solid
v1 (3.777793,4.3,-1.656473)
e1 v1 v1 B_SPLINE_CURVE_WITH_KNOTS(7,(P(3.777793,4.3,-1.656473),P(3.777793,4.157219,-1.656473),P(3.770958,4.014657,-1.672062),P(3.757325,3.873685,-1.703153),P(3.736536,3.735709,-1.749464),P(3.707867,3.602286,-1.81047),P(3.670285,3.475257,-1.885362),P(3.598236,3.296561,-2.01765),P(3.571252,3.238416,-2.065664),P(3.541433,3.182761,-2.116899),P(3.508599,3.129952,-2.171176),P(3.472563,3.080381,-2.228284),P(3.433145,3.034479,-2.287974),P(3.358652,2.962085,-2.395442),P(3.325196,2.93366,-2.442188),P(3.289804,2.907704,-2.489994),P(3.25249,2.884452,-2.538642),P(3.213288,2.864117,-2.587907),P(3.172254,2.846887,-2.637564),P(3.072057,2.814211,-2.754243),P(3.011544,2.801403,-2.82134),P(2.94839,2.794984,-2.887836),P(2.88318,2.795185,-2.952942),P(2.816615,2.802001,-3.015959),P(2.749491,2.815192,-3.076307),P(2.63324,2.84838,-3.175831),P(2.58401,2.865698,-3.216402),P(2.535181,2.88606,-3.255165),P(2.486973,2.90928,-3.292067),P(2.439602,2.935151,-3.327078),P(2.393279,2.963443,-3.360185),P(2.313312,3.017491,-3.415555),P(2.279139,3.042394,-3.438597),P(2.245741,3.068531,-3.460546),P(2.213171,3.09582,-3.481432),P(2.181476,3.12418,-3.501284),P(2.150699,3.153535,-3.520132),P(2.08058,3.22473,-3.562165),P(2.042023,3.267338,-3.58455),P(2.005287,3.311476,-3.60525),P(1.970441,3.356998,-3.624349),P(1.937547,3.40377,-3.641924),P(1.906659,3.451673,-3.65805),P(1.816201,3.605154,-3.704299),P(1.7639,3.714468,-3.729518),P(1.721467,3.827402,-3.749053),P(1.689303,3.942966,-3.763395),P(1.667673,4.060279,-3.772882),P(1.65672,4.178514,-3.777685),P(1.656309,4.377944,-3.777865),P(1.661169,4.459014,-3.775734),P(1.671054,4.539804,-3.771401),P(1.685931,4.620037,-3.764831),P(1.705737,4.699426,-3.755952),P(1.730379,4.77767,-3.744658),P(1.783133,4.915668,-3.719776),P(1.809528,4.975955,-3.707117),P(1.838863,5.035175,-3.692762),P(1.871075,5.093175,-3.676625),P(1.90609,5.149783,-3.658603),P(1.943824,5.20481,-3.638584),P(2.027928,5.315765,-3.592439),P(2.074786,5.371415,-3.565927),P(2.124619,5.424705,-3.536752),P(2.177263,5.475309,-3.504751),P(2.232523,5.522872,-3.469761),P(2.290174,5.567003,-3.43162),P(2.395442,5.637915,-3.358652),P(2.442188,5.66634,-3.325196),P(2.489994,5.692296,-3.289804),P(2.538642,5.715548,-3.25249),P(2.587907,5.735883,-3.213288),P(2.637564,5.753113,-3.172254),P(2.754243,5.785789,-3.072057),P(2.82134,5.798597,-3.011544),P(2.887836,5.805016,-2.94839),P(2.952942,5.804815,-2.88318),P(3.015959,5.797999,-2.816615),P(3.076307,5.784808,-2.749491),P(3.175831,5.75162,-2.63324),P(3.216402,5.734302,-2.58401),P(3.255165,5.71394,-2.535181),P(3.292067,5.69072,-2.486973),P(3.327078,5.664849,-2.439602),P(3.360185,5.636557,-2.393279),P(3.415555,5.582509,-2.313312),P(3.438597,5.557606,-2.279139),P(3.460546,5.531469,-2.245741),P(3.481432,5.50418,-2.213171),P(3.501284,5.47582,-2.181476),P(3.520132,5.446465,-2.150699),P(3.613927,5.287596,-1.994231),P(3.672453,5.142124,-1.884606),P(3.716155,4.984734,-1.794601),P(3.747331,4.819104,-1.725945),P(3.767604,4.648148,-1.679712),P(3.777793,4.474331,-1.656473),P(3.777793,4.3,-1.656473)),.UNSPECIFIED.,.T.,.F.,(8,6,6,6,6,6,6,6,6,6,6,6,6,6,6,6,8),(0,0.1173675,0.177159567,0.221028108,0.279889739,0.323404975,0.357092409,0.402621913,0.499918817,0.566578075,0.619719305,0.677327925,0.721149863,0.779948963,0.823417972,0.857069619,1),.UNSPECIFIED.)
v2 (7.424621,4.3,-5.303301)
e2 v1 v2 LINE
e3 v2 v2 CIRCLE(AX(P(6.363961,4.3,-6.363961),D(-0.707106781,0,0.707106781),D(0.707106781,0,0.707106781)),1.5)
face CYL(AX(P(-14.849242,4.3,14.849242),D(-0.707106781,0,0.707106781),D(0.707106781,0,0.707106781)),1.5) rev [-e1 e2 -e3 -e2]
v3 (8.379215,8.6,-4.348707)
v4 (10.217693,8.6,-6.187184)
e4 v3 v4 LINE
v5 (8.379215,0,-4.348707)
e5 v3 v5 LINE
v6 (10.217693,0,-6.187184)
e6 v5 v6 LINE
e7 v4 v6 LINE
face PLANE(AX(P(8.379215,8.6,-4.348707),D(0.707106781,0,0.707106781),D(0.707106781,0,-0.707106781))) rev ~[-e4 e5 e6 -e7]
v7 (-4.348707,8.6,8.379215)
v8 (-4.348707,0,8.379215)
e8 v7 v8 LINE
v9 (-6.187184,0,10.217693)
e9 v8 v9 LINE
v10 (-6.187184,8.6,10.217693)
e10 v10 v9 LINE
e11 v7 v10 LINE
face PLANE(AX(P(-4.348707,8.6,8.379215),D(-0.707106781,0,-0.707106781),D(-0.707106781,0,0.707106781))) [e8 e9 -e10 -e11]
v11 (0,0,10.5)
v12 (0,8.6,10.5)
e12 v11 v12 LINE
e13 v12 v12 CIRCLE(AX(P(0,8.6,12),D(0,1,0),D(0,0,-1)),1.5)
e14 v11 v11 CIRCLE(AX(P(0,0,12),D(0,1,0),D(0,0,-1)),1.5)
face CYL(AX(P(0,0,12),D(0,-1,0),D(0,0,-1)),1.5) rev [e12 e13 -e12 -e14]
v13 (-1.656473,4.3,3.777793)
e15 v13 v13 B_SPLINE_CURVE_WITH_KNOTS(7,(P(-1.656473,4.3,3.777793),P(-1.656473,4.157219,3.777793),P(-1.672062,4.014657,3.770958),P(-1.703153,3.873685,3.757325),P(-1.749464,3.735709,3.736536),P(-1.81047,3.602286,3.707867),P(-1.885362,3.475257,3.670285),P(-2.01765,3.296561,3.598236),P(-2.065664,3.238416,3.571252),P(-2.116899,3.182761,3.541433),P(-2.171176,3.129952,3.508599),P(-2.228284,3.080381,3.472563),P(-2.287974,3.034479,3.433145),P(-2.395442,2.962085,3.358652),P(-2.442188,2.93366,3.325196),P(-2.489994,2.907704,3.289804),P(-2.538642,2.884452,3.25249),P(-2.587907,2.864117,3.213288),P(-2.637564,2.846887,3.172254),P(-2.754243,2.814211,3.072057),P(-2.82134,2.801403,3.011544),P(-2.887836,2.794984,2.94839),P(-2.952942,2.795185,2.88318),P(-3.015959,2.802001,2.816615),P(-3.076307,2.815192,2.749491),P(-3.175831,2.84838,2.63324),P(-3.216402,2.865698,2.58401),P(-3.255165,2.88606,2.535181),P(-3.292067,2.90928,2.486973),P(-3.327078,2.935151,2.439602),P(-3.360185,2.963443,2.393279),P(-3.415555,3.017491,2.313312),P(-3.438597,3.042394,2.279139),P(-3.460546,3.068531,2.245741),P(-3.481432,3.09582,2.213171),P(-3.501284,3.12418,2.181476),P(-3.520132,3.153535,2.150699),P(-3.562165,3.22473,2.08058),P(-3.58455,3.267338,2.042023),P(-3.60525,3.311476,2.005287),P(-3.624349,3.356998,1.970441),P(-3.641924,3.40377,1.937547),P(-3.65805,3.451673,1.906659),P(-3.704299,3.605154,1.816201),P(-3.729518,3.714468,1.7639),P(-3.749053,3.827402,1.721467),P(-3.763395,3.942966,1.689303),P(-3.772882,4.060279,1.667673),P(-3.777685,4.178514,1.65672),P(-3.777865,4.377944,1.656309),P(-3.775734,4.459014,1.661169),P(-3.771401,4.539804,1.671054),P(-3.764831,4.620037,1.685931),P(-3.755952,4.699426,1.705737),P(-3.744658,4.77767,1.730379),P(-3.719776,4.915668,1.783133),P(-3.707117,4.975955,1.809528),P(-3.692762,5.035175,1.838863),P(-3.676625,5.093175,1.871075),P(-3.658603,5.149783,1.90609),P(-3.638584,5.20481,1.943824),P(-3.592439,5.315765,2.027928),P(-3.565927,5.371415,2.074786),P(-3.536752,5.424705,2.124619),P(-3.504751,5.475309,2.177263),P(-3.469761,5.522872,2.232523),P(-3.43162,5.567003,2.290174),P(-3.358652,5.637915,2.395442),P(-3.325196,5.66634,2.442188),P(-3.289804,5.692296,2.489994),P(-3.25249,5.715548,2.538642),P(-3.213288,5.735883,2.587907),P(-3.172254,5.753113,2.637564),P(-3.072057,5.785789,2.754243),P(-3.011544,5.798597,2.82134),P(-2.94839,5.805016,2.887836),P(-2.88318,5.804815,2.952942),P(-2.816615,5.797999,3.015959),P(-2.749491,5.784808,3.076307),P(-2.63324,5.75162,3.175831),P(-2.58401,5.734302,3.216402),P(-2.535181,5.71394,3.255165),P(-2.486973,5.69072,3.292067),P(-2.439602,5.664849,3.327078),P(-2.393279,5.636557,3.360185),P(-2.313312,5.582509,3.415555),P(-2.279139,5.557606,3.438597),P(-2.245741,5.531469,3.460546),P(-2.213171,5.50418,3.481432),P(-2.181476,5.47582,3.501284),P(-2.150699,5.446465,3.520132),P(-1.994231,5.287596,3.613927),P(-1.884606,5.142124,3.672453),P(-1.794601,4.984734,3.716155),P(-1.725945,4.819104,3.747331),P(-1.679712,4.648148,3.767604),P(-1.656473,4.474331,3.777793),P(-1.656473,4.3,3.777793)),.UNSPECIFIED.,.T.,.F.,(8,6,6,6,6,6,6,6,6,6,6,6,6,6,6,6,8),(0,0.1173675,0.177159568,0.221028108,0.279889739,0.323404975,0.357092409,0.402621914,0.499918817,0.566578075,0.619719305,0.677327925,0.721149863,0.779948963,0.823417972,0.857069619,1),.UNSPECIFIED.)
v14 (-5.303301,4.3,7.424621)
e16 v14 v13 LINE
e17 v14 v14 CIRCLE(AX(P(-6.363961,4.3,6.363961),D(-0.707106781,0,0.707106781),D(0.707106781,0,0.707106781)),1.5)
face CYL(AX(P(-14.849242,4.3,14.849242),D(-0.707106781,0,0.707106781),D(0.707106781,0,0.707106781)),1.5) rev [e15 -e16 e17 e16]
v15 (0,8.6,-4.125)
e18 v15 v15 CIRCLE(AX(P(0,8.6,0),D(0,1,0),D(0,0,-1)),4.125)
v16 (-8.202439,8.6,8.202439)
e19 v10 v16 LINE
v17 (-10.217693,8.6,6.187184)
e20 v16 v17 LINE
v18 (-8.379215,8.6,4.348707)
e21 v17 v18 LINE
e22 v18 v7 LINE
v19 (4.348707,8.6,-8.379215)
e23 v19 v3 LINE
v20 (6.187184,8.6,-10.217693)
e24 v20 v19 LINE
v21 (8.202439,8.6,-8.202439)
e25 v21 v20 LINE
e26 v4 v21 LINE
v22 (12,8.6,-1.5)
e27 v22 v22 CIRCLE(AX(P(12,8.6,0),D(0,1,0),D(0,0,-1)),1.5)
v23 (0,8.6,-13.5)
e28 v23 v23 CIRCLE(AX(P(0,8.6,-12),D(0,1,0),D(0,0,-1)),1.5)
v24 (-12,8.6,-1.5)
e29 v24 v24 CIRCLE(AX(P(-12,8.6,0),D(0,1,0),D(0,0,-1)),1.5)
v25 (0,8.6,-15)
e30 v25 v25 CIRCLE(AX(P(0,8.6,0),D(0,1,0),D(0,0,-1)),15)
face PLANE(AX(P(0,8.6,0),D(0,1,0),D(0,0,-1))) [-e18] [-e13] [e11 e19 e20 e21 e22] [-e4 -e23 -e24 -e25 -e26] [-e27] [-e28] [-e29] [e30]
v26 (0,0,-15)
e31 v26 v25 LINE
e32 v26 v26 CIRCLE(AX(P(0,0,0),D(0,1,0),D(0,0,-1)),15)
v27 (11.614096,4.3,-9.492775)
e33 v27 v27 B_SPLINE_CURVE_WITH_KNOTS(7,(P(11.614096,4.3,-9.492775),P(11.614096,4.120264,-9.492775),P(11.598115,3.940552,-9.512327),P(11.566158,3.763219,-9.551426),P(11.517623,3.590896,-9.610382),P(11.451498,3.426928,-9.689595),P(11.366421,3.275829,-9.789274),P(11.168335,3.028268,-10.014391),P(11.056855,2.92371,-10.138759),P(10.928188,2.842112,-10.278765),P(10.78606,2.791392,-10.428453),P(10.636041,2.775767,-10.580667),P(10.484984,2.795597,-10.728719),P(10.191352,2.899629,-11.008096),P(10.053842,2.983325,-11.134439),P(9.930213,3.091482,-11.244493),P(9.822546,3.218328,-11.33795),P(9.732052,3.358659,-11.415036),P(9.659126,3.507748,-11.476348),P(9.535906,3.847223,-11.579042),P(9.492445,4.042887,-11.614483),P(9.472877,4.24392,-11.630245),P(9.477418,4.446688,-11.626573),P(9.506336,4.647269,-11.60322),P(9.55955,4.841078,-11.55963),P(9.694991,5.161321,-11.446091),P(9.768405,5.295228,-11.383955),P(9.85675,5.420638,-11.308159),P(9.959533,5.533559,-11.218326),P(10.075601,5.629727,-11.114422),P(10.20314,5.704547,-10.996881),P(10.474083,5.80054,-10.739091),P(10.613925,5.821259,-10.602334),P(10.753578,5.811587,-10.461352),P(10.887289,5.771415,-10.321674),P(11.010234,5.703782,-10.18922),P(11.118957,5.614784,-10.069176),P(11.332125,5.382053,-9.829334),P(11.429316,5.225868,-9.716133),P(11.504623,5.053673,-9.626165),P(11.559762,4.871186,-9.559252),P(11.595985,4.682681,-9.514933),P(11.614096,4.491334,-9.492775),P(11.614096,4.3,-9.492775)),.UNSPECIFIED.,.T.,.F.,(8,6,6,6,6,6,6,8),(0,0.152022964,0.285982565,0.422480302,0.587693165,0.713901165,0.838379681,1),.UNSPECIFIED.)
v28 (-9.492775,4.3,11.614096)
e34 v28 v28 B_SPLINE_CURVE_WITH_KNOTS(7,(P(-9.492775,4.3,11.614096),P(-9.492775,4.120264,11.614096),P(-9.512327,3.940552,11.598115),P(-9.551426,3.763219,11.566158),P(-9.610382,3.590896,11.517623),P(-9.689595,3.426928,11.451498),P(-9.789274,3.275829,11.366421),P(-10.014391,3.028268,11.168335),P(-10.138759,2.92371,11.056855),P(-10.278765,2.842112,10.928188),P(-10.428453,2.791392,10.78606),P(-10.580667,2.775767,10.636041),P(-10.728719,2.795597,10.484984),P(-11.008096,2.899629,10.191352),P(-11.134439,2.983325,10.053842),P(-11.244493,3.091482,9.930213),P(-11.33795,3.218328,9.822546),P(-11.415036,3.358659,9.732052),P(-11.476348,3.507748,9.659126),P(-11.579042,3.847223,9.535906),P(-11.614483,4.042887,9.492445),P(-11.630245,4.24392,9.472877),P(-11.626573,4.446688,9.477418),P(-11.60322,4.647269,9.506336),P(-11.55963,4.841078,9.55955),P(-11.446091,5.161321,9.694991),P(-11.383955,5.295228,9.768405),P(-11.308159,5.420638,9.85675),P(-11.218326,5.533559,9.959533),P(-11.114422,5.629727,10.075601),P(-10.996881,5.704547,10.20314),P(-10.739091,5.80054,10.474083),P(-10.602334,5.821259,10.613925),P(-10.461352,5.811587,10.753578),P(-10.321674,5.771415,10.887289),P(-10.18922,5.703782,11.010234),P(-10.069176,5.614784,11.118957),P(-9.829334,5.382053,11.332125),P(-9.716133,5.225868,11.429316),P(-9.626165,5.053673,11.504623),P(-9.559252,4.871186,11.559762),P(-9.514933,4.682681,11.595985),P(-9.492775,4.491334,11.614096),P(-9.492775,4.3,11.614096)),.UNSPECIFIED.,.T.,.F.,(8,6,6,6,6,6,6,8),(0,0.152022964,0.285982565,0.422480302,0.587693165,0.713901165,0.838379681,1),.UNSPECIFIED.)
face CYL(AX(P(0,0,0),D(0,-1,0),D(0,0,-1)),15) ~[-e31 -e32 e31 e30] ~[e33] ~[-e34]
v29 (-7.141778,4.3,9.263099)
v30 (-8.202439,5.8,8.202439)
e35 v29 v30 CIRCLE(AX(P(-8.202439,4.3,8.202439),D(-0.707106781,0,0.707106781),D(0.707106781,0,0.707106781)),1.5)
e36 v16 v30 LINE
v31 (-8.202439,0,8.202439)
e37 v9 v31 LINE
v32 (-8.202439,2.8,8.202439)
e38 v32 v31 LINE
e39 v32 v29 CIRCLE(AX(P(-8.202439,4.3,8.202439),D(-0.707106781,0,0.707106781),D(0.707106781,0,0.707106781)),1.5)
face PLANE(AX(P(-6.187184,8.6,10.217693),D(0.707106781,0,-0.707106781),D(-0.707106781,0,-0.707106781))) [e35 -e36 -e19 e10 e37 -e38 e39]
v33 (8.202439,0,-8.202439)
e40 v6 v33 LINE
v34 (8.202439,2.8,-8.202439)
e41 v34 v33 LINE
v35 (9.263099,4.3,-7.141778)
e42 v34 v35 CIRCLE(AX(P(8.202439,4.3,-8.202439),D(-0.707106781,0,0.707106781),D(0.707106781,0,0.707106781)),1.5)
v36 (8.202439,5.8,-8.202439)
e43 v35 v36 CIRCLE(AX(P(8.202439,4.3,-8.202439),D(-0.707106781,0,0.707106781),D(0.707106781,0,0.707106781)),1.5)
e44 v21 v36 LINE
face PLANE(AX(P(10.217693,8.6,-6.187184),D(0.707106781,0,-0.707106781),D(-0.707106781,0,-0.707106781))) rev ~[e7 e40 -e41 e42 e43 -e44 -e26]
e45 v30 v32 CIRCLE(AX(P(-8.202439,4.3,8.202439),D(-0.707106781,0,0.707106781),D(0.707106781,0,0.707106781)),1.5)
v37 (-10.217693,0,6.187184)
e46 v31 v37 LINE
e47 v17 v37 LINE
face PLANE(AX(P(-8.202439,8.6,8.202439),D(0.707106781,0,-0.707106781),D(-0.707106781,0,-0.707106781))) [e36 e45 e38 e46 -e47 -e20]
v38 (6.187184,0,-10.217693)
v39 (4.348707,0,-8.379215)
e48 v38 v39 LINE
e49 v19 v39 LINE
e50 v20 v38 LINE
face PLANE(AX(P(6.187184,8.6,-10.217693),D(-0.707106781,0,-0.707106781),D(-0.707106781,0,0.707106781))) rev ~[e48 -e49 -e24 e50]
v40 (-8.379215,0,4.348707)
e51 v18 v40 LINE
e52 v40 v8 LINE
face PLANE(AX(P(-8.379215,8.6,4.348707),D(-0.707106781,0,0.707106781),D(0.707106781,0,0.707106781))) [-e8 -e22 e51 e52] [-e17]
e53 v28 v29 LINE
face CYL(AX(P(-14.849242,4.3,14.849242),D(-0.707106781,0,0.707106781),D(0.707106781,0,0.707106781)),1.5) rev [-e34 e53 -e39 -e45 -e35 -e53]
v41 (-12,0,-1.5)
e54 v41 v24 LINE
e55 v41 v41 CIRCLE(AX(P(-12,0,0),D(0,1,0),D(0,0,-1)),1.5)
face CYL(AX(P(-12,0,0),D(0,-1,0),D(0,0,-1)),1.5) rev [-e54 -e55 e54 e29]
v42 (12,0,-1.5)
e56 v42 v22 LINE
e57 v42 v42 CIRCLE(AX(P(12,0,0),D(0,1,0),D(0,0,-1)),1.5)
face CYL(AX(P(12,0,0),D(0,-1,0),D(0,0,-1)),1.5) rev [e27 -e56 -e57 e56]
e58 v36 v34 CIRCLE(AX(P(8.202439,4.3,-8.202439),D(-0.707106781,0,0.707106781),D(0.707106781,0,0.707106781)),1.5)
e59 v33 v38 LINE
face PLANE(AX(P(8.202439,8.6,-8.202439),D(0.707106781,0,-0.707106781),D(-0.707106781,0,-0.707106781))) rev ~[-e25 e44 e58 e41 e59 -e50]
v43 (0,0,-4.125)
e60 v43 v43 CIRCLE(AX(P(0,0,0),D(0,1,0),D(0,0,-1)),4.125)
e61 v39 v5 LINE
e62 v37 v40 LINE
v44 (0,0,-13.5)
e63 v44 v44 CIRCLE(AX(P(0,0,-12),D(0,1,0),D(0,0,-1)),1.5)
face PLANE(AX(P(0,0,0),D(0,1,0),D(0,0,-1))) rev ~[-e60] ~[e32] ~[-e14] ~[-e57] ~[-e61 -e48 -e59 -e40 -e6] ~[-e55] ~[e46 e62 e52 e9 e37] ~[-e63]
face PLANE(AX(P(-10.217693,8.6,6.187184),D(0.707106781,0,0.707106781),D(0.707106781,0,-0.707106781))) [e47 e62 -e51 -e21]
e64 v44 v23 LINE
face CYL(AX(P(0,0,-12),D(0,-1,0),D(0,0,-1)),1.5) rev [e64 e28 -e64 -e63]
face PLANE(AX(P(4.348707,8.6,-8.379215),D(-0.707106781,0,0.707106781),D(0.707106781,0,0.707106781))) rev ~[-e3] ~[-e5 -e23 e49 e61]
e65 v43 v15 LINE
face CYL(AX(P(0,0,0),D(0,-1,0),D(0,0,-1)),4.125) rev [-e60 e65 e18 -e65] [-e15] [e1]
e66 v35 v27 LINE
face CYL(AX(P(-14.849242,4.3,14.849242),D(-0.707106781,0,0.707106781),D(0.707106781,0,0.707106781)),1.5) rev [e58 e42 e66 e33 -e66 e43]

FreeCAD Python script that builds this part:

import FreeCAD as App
import Part
import Sketcher
from FreeCAD import Vector
Q = App.Units.Quantity


def add_polygon(sketch, points):
    """Adds a closed chain of lines whose ends are joined by coincident constraints."""
    first, n = sketch.GeometryCount, len(points)
    for a, b in zip(points, points[1:] + points[:1]):
        sketch.addGeometry(Part.LineSegment(App.Vector(*a, 0), App.Vector(*b, 0)), False)
    for i in range(n):
        sketch.addConstraint(Sketcher.Constraint("Coincident", first + i, 2, first + (i + 1) % n, 1))

doc = App.newDocument("Part")
body = doc.addObject("PartDesign::Body", "Body")

sketch1 = body.newObject("Sketcher::SketchObject", "Sketch")
sketch1.AttachmentSupport = (doc.getObject("XZ_Plane"), [""])
sketch1.MapMode = "FlatFace"
sketch1.addGeometry(Part.Circle(Vector(0, 0, 0), Vector(0, 0, 1), 15), False)
sketch1.addGeometry(Part.Circle(Vector(0, 12, 0), Vector(0, 0, 1), 1.5), False)
sketch1.addGeometry(Part.Circle(Vector(12, 0, 0), Vector(0, 0, 1), 1.5), False)
sketch1.addGeometry(Part.Circle(Vector(-12, 0, 0), Vector(0, 0, 1), 1.5), False)
sketch1.addGeometry(Part.Circle(Vector(0, 0, 0), Vector(0, 0, 1), 4.125), False)
sketch1.addGeometry(Part.Circle(Vector(0, -12, 0), Vector(0, 0, 1), 1.5), False)
sketch1.addConstraint(Sketcher.Constraint("Coincident", 0, 3, -1, 1))
sketch1.addConstraint(Sketcher.Constraint("Coincident", 4, 3, -1, 1))
sketch1.addConstraint(Sketcher.Constraint("Equal", 1, 2))
sketch1.addConstraint(Sketcher.Constraint("Equal", 2, 3))
sketch1.addConstraint(Sketcher.Constraint("Equal", 3, 5))
sketch1.addConstraint(Sketcher.Constraint("Symmetric", 2, 3, 3, 3, -1, 1))
sketch1.addConstraint(Sketcher.Constraint("Symmetric", 1, 3, 5, 3, -1, 1))
sketch1.addConstraint(Sketcher.Constraint("PointOnObject", 1, 3, -2))
sketch1.addConstraint(Sketcher.Constraint("PointOnObject", 2, 3, -1))
sketch1.addConstraint(Sketcher.Constraint("Diameter", 0, Q("30 mm")))
sketch1.addConstraint(Sketcher.Constraint("Diameter", 1, Q("3 mm")))
sketch1.addConstraint(Sketcher.Constraint("Diameter", 4, Q("8.25 mm")))
sketch1.addConstraint(Sketcher.Constraint("DistanceY", -1, 1, 1, 3, Q("12 mm")))
sketch1.addConstraint(Sketcher.Constraint("DistanceX", -1, 1, 2, 3, Q("12 mm")))
pad1 = body.newObject("PartDesign::Pad", "Pad")
pad1.Profile = sketch1
pad1.Length = 8.6
pad1.Reversed = True

sketch2 = body.newObject("Sketcher::SketchObject", "Sketch001")
sketch2.AttachmentSupport = (doc.getObject("XZ_Plane"), [""])
sketch2.MapMode = "FlatFace"
sketch2.AttachmentOffset = App.Placement(Vector(0, 0, -8.6), App.Rotation())
add_polygon(sketch2, [(8.202439, -8.202439), (6.187184, -10.217693), (4.348707, -8.379215), (8.379215, -4.348707), (10.217693, -6.187184)])
add_polygon(sketch2, [(-8.379215, 4.348707), (-10.217693, 6.187184), (-8.202439, 8.202439), (-6.187184, 10.217693), (-4.348707, 8.379215)])
sketch2.addConstraint(Sketcher.Constraint("Symmetric", 3, 2, 5, 2, -1, 1))
sketch2.addConstraint(Sketcher.Constraint("Symmetric", 4, 2, 6, 2, -1, 1))
sketch2.addConstraint(Sketcher.Constraint("Symmetric", 0, 2, 7, 2, -1, 1))
sketch2.addConstraint(Sketcher.Constraint("Symmetric", 1, 2, 8, 2, -1, 1))
sketch2.addConstraint(Sketcher.Constraint("Symmetric", 2, 2, 9, 2, -1, 1))
sketch2.addConstraint(Sketcher.Constraint("Perpendicular", 0, 1))
sketch2.addConstraint(Sketcher.Constraint("Perpendicular", 1, 2))
sketch2.addConstraint(Sketcher.Constraint("Perpendicular", 2, 3))
sketch2.addConstraint(Sketcher.Constraint("Perpendicular", 3, 4))
sketch2.addConstraint(Sketcher.Constraint("Equal", 0, 4))
sketch2.addConstraint(Sketcher.Constraint("Angle", 0, Q("-135 deg")))
sketch2.addConstraint(Sketcher.Constraint("Distance", 1, Q("2.6 mm")))
sketch2.addConstraint(Sketcher.Constraint("Distance", 2, Q("5.7 mm")))
sketch2.addConstraint(Sketcher.Constraint("DistanceX", 5, 2, 1, 2, Q("14.5664 mm")))
sketch2.addConstraint(Sketcher.Constraint("DistanceY", 1, 2, 5, 2, Q("14.5664 mm")))
pocket1 = body.newObject("PartDesign::Pocket", "Pocket")
pocket1.Profile = sketch2
pocket1.Length = 8.6
pocket1.Reversed = True

sketch3 = body.newObject("Sketcher::SketchObject", "Sketch002")
sketch3.Placement = App.Placement(Vector(6.363961, 0, -6.363961), App.Rotation(Vector(-0.707106781, 0, -0.707106781), Vector(0, 0.999999999, 0), Vector(0.707106781, 0, -0.707106781), "ZXY"))
sketch3.addGeometry(Part.Circle(Vector(0, 4.3, 0), Vector(0, 0, 1), 1.5), False)
sketch3.addConstraint(Sketcher.Constraint("PointOnObject", 0, 3, -2))
sketch3.addConstraint(Sketcher.Constraint("Diameter", 0, Q("3 mm")))
sketch3.addConstraint(Sketcher.Constraint("DistanceY", -1, 1, 0, 3, Q("4.3 mm")))
pocket2 = body.newObject("PartDesign::Pocket", "Pocket001")
pocket2.Profile = sketch3
pocket2.Type = "ThroughAll"
pocket2.Midplane = True

doc.recompute()
